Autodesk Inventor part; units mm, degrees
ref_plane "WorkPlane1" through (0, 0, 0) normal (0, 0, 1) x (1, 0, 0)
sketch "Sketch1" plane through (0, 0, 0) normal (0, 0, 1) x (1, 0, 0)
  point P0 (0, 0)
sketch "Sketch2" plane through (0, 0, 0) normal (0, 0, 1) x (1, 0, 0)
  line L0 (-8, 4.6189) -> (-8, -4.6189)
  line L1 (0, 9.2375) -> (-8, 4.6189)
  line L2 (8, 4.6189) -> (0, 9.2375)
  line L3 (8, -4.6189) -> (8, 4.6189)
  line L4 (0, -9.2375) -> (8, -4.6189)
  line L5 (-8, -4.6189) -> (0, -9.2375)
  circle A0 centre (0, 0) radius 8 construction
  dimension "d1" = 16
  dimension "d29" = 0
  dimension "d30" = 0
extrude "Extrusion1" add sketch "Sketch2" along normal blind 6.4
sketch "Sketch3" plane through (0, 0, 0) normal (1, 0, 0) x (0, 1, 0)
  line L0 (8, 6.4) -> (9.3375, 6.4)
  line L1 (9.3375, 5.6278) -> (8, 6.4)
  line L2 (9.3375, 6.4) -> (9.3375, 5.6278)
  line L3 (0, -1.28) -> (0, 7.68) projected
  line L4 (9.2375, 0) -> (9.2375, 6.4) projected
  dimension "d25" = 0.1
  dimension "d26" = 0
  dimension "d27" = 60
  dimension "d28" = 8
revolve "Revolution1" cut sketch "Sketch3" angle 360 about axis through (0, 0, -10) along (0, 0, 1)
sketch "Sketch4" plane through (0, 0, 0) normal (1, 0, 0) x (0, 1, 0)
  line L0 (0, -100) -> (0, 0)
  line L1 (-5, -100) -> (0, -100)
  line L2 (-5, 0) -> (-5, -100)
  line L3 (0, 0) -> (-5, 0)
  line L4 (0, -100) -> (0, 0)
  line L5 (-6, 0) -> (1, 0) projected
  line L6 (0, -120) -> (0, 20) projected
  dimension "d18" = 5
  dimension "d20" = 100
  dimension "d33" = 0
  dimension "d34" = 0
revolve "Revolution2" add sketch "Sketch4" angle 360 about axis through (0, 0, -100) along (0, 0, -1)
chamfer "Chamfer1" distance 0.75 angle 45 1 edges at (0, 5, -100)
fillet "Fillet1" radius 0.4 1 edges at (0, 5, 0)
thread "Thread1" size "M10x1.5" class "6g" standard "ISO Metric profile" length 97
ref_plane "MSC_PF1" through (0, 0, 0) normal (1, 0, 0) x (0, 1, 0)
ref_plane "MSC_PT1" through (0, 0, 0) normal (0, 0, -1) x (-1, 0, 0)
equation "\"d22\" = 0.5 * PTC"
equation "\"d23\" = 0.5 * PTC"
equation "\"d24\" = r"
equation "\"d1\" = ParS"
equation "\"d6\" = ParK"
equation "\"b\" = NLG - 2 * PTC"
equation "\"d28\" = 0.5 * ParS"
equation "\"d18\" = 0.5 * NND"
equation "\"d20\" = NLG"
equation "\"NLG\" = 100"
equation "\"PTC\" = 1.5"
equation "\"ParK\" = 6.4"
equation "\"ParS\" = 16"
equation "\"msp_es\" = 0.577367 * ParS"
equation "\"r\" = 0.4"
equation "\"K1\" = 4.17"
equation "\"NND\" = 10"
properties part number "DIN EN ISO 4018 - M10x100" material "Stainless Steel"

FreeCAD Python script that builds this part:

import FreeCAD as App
import Part
import Sketcher
from FreeCAD import Vector
Q = App.Units.Quantity


def edges_at(feature, points):
    """Names of the edges that pass closest to the given points."""
    edges = feature.Shape.Edges
    near = lambda p: min(range(len(edges)), key=lambda i: edges[i].distToShape(Part.Vertex(*p))[0])
    return sorted({f"Edge{near(p) + 1}" for p in points})

doc = App.newDocument("Part")
params = doc.addObject("Spreadsheet::Sheet", "Params")
for row, (alias, value) in enumerate([
    ("pad1_length", "6.4 mm"),
    ("groove_angle", "360 deg"),
    ("sketch3_width", "5 mm"),
    ("sketch3_height", "100 mm"),
    ("revolution_angle", "360 deg"),
    ("chamfer_size", "0.75 mm"),
    ("fillet_radius", "0.4 mm"),
], start=1):
    params.set(f"A{row}", alias)
    params.set(f"B{row}", "=" + value)
    params.setAlias(f"B{row}", alias)

body = doc.addObject("PartDesign::Body", "Body")

sketch1 = body.newObject("Sketcher::SketchObject", "Sketch")
sketch1.AttachmentSupport = (doc.getObject("XY_Plane"), [""])
sketch1.MapMode = "FlatFace"
sketch1.addGeometry([
    Part.LineSegment(Vector(0, 9, 0), Vector(-8, 5, 0)),
    Part.LineSegment(Vector(-8, 5, 0), Vector(-8, -5, 0)),
    Part.LineSegment(Vector(-8, -5, 0), Vector(0, -9, 0)),
    Part.LineSegment(Vector(0, -9, 0), Vector(8, -5, 0)),
    Part.LineSegment(Vector(8, -5, 0), Vector(8, 5, 0)),
    Part.LineSegment(Vector(8, 5, 0), Vector(0, 9, 0)),
], False)
sketch1.addConstraint([
    Sketcher.Constraint("Coincident", 0, 2, 1, 1),
    Sketcher.Constraint("Coincident", 1, 2, 2, 1),
    Sketcher.Constraint("Coincident", 2, 2, 3, 1),
    Sketcher.Constraint("Coincident", 3, 2, 4, 1),
    Sketcher.Constraint("Coincident", 4, 2, 5, 1),
    Sketcher.Constraint("Coincident", 5, 2, 0, 1),
    Sketcher.Constraint("Vertical", 1),
    Sketcher.Constraint("Vertical", 4),
    Sketcher.Constraint("Symmetric", 0, 2, 3, 2, -1, 1),
    Sketcher.Constraint("Symmetric", 2, 2, 5, 2, -1, 1),
    Sketcher.Constraint("PointOnObject", 2, 2, -2),
    Sketcher.Constraint("Parallel", 2, 5),
    Sketcher.Constraint("Horizontal", 1, 2, 3, 2),
    Sketcher.Constraint("DistanceX", 1, 2, 3, 2, 16.0),
    Sketcher.Constraint("Angle", 0, Q("-150.001 deg")),
    Sketcher.Constraint("DistanceY", 1, 2, 1, 1, 9.2378),
])
pad1 = body.newObject("PartDesign::Pad", "Pad")
pad1.Profile = sketch1
pad1.setExpression("Length", "Params.pad1_length")

sketch2 = body.newObject("Sketcher::SketchObject", "Sketch001")
sketch2.AttachmentSupport = (doc.getObject("YZ_Plane"), [""])
sketch2.MapMode = "FlatFace"
sketch2.addGeometry([
    Part.LineSegment(Vector(8, 6.4, 0), Vector(9.3, 5.6, 0)),
    Part.LineSegment(Vector(9.3, 5.6, 0), Vector(9.3, 6.4, 0)),
    Part.LineSegment(Vector(9.3, 6.4, 0), Vector(8, 6.4, 0)),
], False)
sketch2.addConstraint([
    Sketcher.Constraint("Coincident", 0, 2, 1, 1),
    Sketcher.Constraint("Coincident", 1, 2, 2, 1),
    Sketcher.Constraint("Coincident", 2, 2, 0, 1),
    Sketcher.Constraint("Vertical", 1),
    Sketcher.Constraint("Horizontal", 2),
    Sketcher.Constraint("DistanceX", -1, 1, 2, 2, 8.0),
    Sketcher.Constraint("Angle", 0, Q("-29.9998 deg")),
    Sketcher.Constraint("DistanceY", -1, 1, 1, 2, 6.4),
    Sketcher.Constraint("DistanceX", 2, 2, 2, 1, 1.3375),
])
groove = body.newObject("PartDesign::Groove", "Groove")
groove.Profile = sketch2
groove.ReferenceAxis = (sketch2, ["V_Axis"])
groove.setExpression("Angle", "Params.groove_angle")

sketch3 = body.newObject("Sketcher::SketchObject", "Sketch002")
sketch3.AttachmentSupport = (doc.getObject("YZ_Plane"), [""])
sketch3.MapMode = "FlatFace"
sketch3.addGeometry([
    Part.LineSegment(Vector(-5, -100, 0), Vector(0, -100, 0)),
    Part.LineSegment(Vector(0, -100, 0), Vector(0, 0, 0)),
    Part.LineSegment(Vector(0, 0, 0), Vector(-5, 0, 0)),
    Part.LineSegment(Vector(-5, 0, 0), Vector(-5, -100, 0)),
], False)
sketch3.addConstraint([
    Sketcher.Constraint("Coincident", 0, 2, 1, 1),
    Sketcher.Constraint("Coincident", 1, 2, 2, 1),
    Sketcher.Constraint("Coincident", 2, 2, 3, 1),
    Sketcher.Constraint("Coincident", 3, 2, 0, 1),
    Sketcher.Constraint("Horizontal", 0),
    Sketcher.Constraint("Vertical", 1),
    Sketcher.Constraint("Horizontal", 2),
    Sketcher.Constraint("Vertical", 3),
    Sketcher.Constraint("Coincident", 1, 2, -1, 1),
    Sketcher.Constraint("DistanceX", 0, 1, 0, 2, 5.0),
    Sketcher.Constraint("DistanceY", 1, 1, 1, 2, 100.0),
])
sketch3.setExpression("Constraints[9]", "Params.sketch3_width")
sketch3.setExpression("Constraints[10]", "Params.sketch3_height")
revolution = body.newObject("PartDesign::Revolution", "Revolution")
revolution.Profile = sketch3
revolution.ReferenceAxis = (sketch3, ["V_Axis"])
revolution.setExpression("Angle", "Params.revolution_angle")
doc.recompute()

chamfer = body.newObject("PartDesign::Chamfer", "Chamfer")
chamfer.Base = (revolution, edges_at(revolution, [(0, 5, -100)]))
chamfer.setExpression("Size", "Params.chamfer_size")
doc.recompute()

fillet = body.newObject("PartDesign::Fillet", "Fillet")
fillet.Base = (chamfer, edges_at(chamfer, [(0, 5, 0)]))
fillet.setExpression("Radius", "Params.fillet_radius")

doc.recompute()
